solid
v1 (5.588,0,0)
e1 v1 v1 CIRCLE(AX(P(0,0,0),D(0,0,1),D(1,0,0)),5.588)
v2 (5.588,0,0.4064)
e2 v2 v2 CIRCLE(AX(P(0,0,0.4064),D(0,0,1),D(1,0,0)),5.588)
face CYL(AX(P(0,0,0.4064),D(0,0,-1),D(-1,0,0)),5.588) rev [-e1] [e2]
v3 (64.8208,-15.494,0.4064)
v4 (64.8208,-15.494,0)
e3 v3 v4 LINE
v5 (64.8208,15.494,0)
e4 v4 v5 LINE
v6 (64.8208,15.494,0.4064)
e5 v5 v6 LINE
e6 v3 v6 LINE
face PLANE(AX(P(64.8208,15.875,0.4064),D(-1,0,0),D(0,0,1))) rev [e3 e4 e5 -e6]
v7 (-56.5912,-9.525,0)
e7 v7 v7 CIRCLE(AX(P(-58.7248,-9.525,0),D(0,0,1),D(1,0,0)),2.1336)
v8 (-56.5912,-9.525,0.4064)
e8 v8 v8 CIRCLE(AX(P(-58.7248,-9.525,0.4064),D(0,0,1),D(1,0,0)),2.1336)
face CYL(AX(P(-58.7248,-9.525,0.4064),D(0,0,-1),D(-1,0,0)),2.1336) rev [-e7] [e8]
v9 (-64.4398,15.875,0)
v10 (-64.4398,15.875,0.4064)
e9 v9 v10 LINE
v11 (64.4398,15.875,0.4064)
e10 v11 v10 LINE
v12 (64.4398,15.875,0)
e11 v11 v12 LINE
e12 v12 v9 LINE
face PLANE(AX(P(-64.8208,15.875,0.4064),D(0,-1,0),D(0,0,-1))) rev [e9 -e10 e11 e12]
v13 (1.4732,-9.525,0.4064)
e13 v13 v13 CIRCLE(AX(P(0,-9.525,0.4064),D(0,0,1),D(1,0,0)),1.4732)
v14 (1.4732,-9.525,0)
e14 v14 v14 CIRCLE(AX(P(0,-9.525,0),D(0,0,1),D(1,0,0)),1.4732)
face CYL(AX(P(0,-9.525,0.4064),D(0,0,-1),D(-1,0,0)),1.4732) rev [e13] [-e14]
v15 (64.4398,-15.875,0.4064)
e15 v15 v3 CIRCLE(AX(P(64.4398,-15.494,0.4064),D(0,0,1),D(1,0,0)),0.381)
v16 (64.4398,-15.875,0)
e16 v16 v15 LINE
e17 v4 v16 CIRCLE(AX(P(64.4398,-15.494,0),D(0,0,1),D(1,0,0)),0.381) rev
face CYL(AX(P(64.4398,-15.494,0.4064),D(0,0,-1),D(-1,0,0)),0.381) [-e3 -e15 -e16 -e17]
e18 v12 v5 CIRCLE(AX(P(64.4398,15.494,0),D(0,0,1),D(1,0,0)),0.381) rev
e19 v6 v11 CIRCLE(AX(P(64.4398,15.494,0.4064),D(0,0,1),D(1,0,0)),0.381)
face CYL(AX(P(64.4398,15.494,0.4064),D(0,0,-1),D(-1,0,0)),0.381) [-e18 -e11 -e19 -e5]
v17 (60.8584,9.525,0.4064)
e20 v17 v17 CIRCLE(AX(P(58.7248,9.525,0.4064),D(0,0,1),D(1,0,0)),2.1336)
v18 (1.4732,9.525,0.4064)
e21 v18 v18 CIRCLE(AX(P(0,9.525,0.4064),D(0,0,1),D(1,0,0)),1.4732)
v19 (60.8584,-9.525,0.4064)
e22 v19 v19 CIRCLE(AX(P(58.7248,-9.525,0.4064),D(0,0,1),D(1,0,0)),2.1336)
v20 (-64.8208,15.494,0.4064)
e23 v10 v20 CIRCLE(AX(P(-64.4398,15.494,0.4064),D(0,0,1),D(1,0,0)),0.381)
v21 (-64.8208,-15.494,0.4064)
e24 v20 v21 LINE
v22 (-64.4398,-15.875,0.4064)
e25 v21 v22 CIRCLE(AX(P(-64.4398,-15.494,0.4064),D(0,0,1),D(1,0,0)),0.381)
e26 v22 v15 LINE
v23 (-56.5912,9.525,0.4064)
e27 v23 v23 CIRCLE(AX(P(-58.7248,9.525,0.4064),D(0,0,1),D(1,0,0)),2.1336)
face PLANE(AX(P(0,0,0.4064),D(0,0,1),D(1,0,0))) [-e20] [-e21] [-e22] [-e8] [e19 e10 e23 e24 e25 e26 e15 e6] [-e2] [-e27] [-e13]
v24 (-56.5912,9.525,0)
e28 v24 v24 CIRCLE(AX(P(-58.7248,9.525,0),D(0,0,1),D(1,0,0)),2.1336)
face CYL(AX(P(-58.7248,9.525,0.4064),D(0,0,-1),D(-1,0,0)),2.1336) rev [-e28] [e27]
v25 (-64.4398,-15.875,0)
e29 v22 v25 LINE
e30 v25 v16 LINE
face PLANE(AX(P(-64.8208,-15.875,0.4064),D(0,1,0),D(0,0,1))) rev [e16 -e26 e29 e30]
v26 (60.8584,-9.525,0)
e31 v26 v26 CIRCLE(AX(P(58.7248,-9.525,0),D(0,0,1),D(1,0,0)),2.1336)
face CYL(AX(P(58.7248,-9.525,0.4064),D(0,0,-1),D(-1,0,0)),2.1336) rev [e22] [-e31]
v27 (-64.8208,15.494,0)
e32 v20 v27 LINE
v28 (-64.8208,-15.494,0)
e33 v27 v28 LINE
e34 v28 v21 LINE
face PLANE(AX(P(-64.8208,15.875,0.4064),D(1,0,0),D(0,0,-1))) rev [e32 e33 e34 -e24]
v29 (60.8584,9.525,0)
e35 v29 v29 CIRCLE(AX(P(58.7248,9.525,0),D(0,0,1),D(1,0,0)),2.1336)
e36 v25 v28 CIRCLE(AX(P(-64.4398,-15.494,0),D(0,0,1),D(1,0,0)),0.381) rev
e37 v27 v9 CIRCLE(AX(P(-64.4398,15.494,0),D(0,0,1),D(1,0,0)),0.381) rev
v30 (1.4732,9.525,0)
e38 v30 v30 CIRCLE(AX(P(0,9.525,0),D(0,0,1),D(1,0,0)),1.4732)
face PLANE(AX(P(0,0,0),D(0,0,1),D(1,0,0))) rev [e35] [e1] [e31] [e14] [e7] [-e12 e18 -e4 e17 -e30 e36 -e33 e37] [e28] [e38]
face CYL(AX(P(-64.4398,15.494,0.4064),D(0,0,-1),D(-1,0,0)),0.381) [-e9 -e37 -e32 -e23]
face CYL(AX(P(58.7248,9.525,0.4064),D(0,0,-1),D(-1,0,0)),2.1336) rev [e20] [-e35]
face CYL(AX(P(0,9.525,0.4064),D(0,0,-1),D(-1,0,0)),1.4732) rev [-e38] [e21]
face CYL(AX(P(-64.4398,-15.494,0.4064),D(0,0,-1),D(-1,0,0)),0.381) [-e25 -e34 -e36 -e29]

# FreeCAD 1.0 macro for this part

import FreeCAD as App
import Part
import Sketcher
Q = App.Units.Quantity


def edges_at(feature, points):
    """Names of the edges that pass closest to the given points."""
    edges = feature.Shape.Edges
    near = lambda p: min(range(len(edges)), key=lambda i: edges[i].distToShape(Part.Vertex(*p))[0])
    return sorted({f"Edge{near(p) + 1}" for p in points})


def add_polygon(sketch, points):
    """Adds a closed chain of lines whose ends are joined by coincident constraints."""
    first, n = sketch.GeometryCount, len(points)
    for a, b in zip(points, points[1:] + points[:1]):
        sketch.addGeometry(Part.LineSegment(App.Vector(*a, 0), App.Vector(*b, 0)), False)
    for i in range(n):
        sketch.addConstraint(Sketcher.Constraint("Coincident", first + i, 2, first + (i + 1) % n, 1))

doc = App.newDocument("Part")
params = doc.addObject("Spreadsheet::Sheet", "Params")
for row, (alias, value) in enumerate([
    ("sketch1_diameter", "0.44 in"),
    ("sketch1_diameter2", "0.168 in"),
    ("sketch1_diameter3", "0.116 in"),
    ("sketch1_height", "1.25 in"),
    ("sketch1_width", "5.104 in"),
    ("pad1_length", "0.016 in"),
    ("fillet_radius", "0.015 in"),
], start=1):
    params.set(f"A{row}", alias)
    params.set(f"B{row}", "=" + value)
    params.setAlias(f"B{row}", alias)

body = doc.addObject("PartDesign::Body", "Body")

# Sketch on XY plane
sketch1 = doc.addObject("Sketcher::SketchObject", "Sketch")
body.addObject(sketch1)
sketch1.AttachmentSupport = (doc.XY_Plane, [""])
sketch1.MapMode = "FlatFace"
add_polygon(sketch1, [(-64.8, 15.9), (-64.8, -15.9), (64.8, -15.9), (64.8, 15.9)])  # lines 0-3
sketch1.addGeometry(Part.Circle(App.Vector(-58.7, -9.5, 0), App.Vector(0, 0, 1), 2.1), False)  # 4
sketch1.addGeometry(Part.Circle(App.Vector(0, -9.5, 0), App.Vector(0, 0, 1), 1.5), False)  # 5
sketch1.addGeometry(Part.Circle(App.Vector(58.7, -9.5, 0), App.Vector(0, 0, 1), 2.1), False)  # 6
sketch1.addGeometry(Part.Circle(App.Vector(0, 0, 0), App.Vector(0, 0, 1), 5.6), False)  # 7
sketch1.addGeometry(Part.Circle(App.Vector(-58.7, 9.5, 0), App.Vector(0, 0, 1), 2.1), False)  # 8
sketch1.addGeometry(Part.Circle(App.Vector(0, 9.5, 0), App.Vector(0, 0, 1), 1.5), False)  # 9
sketch1.addGeometry(Part.Circle(App.Vector(58.7, 9.5, 0), App.Vector(0, 0, 1), 2.1), False)  # 10
sketch1.addConstraint([
    Sketcher.Constraint("Vertical", 0),
    Sketcher.Constraint("Horizontal", 1),
    Sketcher.Constraint("Vertical", 2),
    Sketcher.Constraint("Horizontal", 3),
    Sketcher.Constraint("Coincident", 7, 3, -1, 1),
    Sketcher.Constraint("Equal", 4, 6),
    Sketcher.Constraint("Equal", 6, 8),
    Sketcher.Constraint("Equal", 5, 9),
    Sketcher.Constraint("Equal", 8, 10),
    Sketcher.Constraint("Symmetric", 6, 3, 8, 3, -1, 1),
    Sketcher.Constraint("Symmetric", 5, 3, 9, 3, -1, 1),
    Sketcher.Constraint("Symmetric", 4, 3, 10, 3, -1, 1),
    Sketcher.Constraint("Symmetric", 0, 2, 2, 2, -1, 1),
    Sketcher.Constraint("Symmetric", 4, 3, 6, 3, -2),
    Sketcher.Constraint("PointOnObject", 5, 3, -2),
    Sketcher.Constraint("Horizontal", 4, 3, 5, 3),
    Sketcher.Constraint("Diameter", 7, Q("0.44 in")),
    Sketcher.Constraint("Diameter", 4, Q("0.168 in")),
    Sketcher.Constraint("Diameter", 5, Q("0.116 in")),
    Sketcher.Constraint("DistanceY", 0, 2, 8, 3, Q("1 in")),
    Sketcher.Constraint("DistanceY", 0, 2, 0, 1, Q("1.25 in")),
    Sketcher.Constraint("DistanceX", 1, 1, 1, 2, Q("5.104 in")),
    Sketcher.Constraint("DistanceX", 0, 2, 4, 3, Q("0.24 in")),
])
sketch1.setExpression("Constraints[20]", "Params.sketch1_diameter")
sketch1.setExpression("Constraints[21]", "Params.sketch1_diameter2")
sketch1.setExpression("Constraints[22]", "Params.sketch1_diameter3")
sketch1.setExpression("Constraints[24]", "Params.sketch1_height")
sketch1.setExpression("Constraints[25]", "Params.sketch1_width")
pad1 = doc.addObject("PartDesign::Pad", "Pad")
body.addObject(pad1)
pad1.Profile = sketch1
pad1.setExpression("Length", "Params.pad1_length")
doc.recompute()

fillet = doc.addObject("PartDesign::Fillet", "Fillet")
body.addObject(fillet)
fillet.Base = (pad1, edges_at(pad1, [
    (-64.821, 15.875, 0.203),
    (64.821, 15.875, 0.203),
    (64.821, -15.875, 0.203),
    (-64.821, -15.875, 0.203),
]))
fillet.setExpression("Radius", "Params.fillet_radius")

doc.recompute()
